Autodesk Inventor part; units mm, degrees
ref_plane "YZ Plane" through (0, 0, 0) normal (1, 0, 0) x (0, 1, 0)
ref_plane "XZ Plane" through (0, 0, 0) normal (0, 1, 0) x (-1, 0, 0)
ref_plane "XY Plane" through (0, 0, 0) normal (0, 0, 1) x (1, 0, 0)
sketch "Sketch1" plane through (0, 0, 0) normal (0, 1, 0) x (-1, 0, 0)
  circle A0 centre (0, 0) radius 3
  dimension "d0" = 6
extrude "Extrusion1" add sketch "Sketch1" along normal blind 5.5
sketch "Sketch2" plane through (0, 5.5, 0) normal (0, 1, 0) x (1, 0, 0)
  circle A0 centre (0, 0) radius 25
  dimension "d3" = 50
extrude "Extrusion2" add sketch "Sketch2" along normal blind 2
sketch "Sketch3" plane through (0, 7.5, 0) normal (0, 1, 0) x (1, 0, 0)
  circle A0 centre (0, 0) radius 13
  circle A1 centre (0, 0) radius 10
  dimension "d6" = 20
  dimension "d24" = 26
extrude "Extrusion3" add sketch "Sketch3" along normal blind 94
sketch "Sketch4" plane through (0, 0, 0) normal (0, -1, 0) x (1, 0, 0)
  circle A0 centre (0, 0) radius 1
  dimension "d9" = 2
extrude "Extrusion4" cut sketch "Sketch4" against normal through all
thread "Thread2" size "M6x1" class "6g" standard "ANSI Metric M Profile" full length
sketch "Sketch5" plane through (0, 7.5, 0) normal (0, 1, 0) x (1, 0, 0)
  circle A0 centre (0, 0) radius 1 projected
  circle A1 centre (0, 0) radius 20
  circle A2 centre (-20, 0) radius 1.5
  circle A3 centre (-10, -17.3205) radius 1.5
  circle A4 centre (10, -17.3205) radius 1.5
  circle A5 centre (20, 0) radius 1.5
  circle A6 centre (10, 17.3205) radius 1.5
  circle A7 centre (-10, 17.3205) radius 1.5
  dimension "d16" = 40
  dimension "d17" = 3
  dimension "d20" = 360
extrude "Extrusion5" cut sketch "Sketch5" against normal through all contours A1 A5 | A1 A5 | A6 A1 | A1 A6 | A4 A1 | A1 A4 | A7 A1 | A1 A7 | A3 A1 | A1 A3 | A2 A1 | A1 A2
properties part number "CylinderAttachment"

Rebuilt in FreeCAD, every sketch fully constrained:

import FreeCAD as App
import Part
import Sketcher
Q = App.Units.Quantity

doc = App.newDocument("Part")
body = doc.addObject("PartDesign::Body", "Body")

sketch1 = doc.addObject("Sketcher::SketchObject", "Sketch")
body.addObject(sketch1)
sketch1.AttachmentSupport = (doc.XZ_Plane, [""])
sketch1.MapMode = "FlatFace"
sketch1.addGeometry(Part.Circle(App.Vector(0, 0, 0), App.Vector(0, 0, 1), 3), False)
sketch1.addConstraint([
    Sketcher.Constraint("Coincident", 0, 3, -1, 1),
    Sketcher.Constraint("Diameter", 0, Q("6 mm")),
])
pad1 = doc.addObject("PartDesign::Pad", "Pad")
body.addObject(pad1)
pad1.Profile = sketch1
pad1.Length = 5.5
pad1.Reversed = True

sketch2 = doc.addObject("Sketcher::SketchObject", "Sketch001")
body.addObject(sketch2)
sketch2.AttachmentSupport = (doc.XZ_Plane, [""])
sketch2.MapMode = "FlatFace"
sketch2.AttachmentOffset = App.Placement(App.Vector(0, 0, -5.5), App.Rotation())
sketch2.addGeometry(Part.Circle(App.Vector(0, 0, 0), App.Vector(0, 0, 1), 25), False)
sketch2.addConstraint([
    Sketcher.Constraint("Coincident", 0, 3, -1, 1),
    Sketcher.Constraint("Diameter", 0, Q("50 mm")),
])
pad2 = doc.addObject("PartDesign::Pad", "Pad001")
body.addObject(pad2)
pad2.Profile = sketch2
pad2.Length = 2
pad2.Reversed = True

sketch3 = doc.addObject("Sketcher::SketchObject", "Sketch002")
body.addObject(sketch3)
sketch3.AttachmentSupport = (doc.XZ_Plane, [""])
sketch3.MapMode = "FlatFace"
sketch3.AttachmentOffset = App.Placement(App.Vector(0, 0, -7.5), App.Rotation())
sketch3.addGeometry([
    Part.Circle(App.Vector(0, 0, 0), App.Vector(0, 0, 1), 13),
    Part.Circle(App.Vector(0, 0, 0), App.Vector(0, 0, 1), 10),
], False)
sketch3.addConstraint([
    Sketcher.Constraint("Coincident", 0, 3, -1, 1),
    Sketcher.Constraint("Coincident", 1, 3, -1, 1),
    Sketcher.Constraint("Diameter", 0, Q("26 mm")),
    Sketcher.Constraint("Diameter", 1, Q("20 mm")),
])
pad3 = doc.addObject("PartDesign::Pad", "Pad002")
body.addObject(pad3)
pad3.Profile = sketch3
pad3.Length = 94
pad3.Reversed = True

sketch4 = doc.addObject("Sketcher::SketchObject", "Sketch003")
body.addObject(sketch4)
sketch4.AttachmentSupport = (doc.XZ_Plane, [""])
sketch4.MapMode = "FlatFace"
sketch4.addGeometry(Part.Circle(App.Vector(0, 0, 0), App.Vector(0, 0, 1), 1), False)
sketch4.addConstraint([
    Sketcher.Constraint("Coincident", 0, 3, -1, 1),
    Sketcher.Constraint("Diameter", 0, Q("2 mm")),
])
pocket1 = doc.addObject("PartDesign::Pocket", "Pocket")
body.addObject(pocket1)
pocket1.Profile = sketch4
pocket1.Type = "ThroughAll"

sketch5 = doc.addObject("Sketcher::SketchObject", "Sketch004")
body.addObject(sketch5)
sketch5.AttachmentSupport = (doc.XZ_Plane, [""])
sketch5.MapMode = "FlatFace"
sketch5.AttachmentOffset = App.Placement(App.Vector(0, 0, -7.5), App.Rotation())
sketch5.addGeometry([
    Part.Circle(App.Vector(20, 0, 0), App.Vector(0, 0, 1), 1.5),
    Part.Circle(App.Vector(10, -17.3205, 0), App.Vector(0, 0, 1), 1.5),
    Part.Circle(App.Vector(10, 17.3205, 0), App.Vector(0, 0, 1), 1.5),
    Part.Circle(App.Vector(-10, -17.3205, 0), App.Vector(0, 0, 1), 1.5),
    Part.Circle(App.Vector(-10, 17.3205, 0), App.Vector(0, 0, 1), 1.5),
    Part.Circle(App.Vector(-20, 0, 0), App.Vector(0, 0, 1), 1.5),
], False)
sketch5.addConstraint([
    Sketcher.Constraint("Equal", 0, 1),
    Sketcher.Constraint("Equal", 1, 2),
    Sketcher.Constraint("Equal", 2, 3),
    Sketcher.Constraint("Equal", 3, 4),
    Sketcher.Constraint("Equal", 4, 5),
    Sketcher.Constraint("Symmetric", 2, 3, 3, 3, -1, 1),
    Sketcher.Constraint("Symmetric", 1, 3, 4, 3, -1, 1),
    Sketcher.Constraint("Symmetric", 0, 3, 5, 3, -1, 1),
    Sketcher.Constraint("Symmetric", 1, 3, 3, 3, -2),
    Sketcher.Constraint("PointOnObject", 0, 3, -1),
    Sketcher.Constraint("Diameter", 0, Q("3 mm")),
    Sketcher.Constraint("DistanceX", 5, 3, 0, 3, Q("40 mm")),
    Sketcher.Constraint("DistanceX", -1, 1, 1, 3, Q("10 mm")),
    Sketcher.Constraint("DistanceY", 1, 3, 2, 3, Q("34.641 mm")),
])
pocket2 = doc.addObject("PartDesign::Pocket", "Pocket001")
body.addObject(pocket2)
pocket2.Profile = sketch5
pocket2.Type = "ThroughAll"
pocket2.Reversed = True

doc.recompute()
